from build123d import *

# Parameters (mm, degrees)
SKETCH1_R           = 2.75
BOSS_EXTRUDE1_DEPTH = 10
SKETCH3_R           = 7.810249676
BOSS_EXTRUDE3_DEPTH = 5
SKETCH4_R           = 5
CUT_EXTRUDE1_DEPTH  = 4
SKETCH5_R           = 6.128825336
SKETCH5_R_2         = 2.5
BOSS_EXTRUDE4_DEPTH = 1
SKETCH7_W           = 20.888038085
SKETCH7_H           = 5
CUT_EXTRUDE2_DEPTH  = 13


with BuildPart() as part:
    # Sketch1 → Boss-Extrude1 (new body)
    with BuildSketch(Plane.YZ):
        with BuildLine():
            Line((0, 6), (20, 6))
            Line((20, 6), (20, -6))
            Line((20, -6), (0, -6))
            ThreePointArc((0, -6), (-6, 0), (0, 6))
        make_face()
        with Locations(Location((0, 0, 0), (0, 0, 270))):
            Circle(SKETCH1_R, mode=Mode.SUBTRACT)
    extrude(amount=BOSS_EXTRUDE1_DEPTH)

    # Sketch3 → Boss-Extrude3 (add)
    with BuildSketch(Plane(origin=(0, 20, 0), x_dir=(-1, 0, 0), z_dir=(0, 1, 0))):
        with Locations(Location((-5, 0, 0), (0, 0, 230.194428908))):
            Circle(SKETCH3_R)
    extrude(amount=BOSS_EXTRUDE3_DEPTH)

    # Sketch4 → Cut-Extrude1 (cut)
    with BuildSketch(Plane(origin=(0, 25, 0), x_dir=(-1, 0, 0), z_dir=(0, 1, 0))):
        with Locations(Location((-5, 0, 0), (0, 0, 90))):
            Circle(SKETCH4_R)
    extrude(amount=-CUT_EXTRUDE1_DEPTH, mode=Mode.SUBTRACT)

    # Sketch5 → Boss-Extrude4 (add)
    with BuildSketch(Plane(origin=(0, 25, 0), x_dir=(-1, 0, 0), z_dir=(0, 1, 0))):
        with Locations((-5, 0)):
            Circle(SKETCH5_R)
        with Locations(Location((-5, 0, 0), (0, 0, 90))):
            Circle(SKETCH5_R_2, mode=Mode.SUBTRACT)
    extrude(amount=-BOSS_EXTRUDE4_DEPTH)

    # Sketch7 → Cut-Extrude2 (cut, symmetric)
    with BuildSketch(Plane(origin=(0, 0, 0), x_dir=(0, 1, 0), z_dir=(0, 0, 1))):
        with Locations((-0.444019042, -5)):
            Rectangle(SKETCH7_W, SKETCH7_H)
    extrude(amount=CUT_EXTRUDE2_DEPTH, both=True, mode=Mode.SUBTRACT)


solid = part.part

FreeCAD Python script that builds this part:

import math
import FreeCAD as App
import Part
import Sketcher
Q = App.Units.Quantity


def add_polygon(sketch, points):
    """Adds a closed chain of lines whose ends are joined by coincident constraints."""
    first, n = sketch.GeometryCount, len(points)
    for a, b in zip(points, points[1:] + points[:1]):
        sketch.addGeometry(Part.LineSegment(App.Vector(*a, 0), App.Vector(*b, 0)), False)
    for i in range(n):
        sketch.addConstraint(Sketcher.Constraint("Coincident", first + i, 2, first + (i + 1) % n, 1))

doc = App.newDocument("Part")
body = doc.addObject("PartDesign::Body", "Body")

sketch1 = body.newObject("Sketcher::SketchObject", "Sketch")
sketch1.AttachmentSupport = (doc.getObject("YZ_Plane"), [""])
sketch1.MapMode = "FlatFace"
sketch1.addGeometry([
    Part.LineSegment(App.Vector(20, 6, 0), App.Vector(0, 6, 0)),
    Part.ArcOfCircle(Part.Circle(App.Vector(0, 0, 0), App.Vector(0, 0, 1), 6), math.radians(90), math.radians(270)),
    Part.LineSegment(App.Vector(0, -6, 0), App.Vector(20, -6, 0)),
    Part.LineSegment(App.Vector(20, -6, 0), App.Vector(20, 6, 0)),
    Part.Circle(App.Vector(0, 0, 0), App.Vector(0, 0, 1), 2.8),
], False)
sketch1.addConstraint([
    Sketcher.Constraint("Tangent", 0, 2, 1, 1),
    Sketcher.Constraint("Tangent", 1, 2, 2, 1),
    Sketcher.Constraint("Coincident", 2, 2, 3, 1),
    Sketcher.Constraint("Coincident", 3, 2, 0, 1),
    Sketcher.Constraint("Horizontal", 0),
    Sketcher.Constraint("Horizontal", 2),
    Sketcher.Constraint("Vertical", 3),
    Sketcher.Constraint("Coincident", 1, 3, -1, 1),
    Sketcher.Constraint("Coincident", 4, 3, -1, 1),
    Sketcher.Constraint("Radius", 1, Q("6 mm")),
    Sketcher.Constraint("Diameter", 4, Q("5.5 mm")),
    Sketcher.Constraint("DistanceX", 0, 2, 0, 1, Q("20 mm")),
])
pad1 = body.newObject("PartDesign::Pad", "Pad")
pad1.Profile = sketch1
pad1.Length = 10

sketch2 = body.newObject("Sketcher::SketchObject", "Sketch001")
sketch2.AttachmentSupport = (doc.getObject("XZ_Plane"), [""])
sketch2.MapMode = "FlatFace"
sketch2.AttachmentOffset = App.Placement(App.Vector(0, 0, -20), App.Rotation())
sketch2.addGeometry(Part.Circle(App.Vector(5, 0, 0), App.Vector(0, 0, 1), 8), False)
sketch2.addConstraint([
    Sketcher.Constraint("PointOnObject", 0, 3, -1),
    Sketcher.Constraint("DistanceX", -1, 1, 0, 3, Q("5 mm")),
    Sketcher.Constraint("Diameter", 0, Q("15.620499 mm")),
])
pad2 = body.newObject("PartDesign::Pad", "Pad001")
pad2.Profile = sketch2
pad2.Length = 5
pad2.Reversed = True

sketch3 = body.newObject("Sketcher::SketchObject", "Sketch002")
sketch3.AttachmentSupport = (doc.getObject("XZ_Plane"), [""])
sketch3.MapMode = "FlatFace"
sketch3.AttachmentOffset = App.Placement(App.Vector(0, 0, -25), App.Rotation())
sketch3.addGeometry(Part.Circle(App.Vector(5, 0, 0), App.Vector(0, 0, 1), 5), False)
sketch3.addConstraint([
    Sketcher.Constraint("PointOnObject", 0, 3, -1),
    Sketcher.Constraint("Diameter", 0, Q("10 mm")),
    Sketcher.Constraint("DistanceX", -1, 1, 0, 3, Q("5 mm")),
])
pocket1 = body.newObject("PartDesign::Pocket", "Pocket")
pocket1.Profile = sketch3
pocket1.Length = 4
pocket1.Reversed = True

sketch4 = body.newObject("Sketcher::SketchObject", "Sketch003")
sketch4.AttachmentSupport = (doc.getObject("XZ_Plane"), [""])
sketch4.MapMode = "FlatFace"
sketch4.AttachmentOffset = App.Placement(App.Vector(0, 0, -25), App.Rotation())
sketch4.addGeometry([
    Part.Circle(App.Vector(5, 0, 0), App.Vector(0, 0, 1), 6.1),
    Part.Circle(App.Vector(5, 0, 0), App.Vector(0, 0, 1), 2.5),
], False)
sketch4.addConstraint([
    Sketcher.Constraint("Coincident", 1, 3, 0, 3),
    Sketcher.Constraint("PointOnObject", 0, 3, -1),
    Sketcher.Constraint("Diameter", 1, Q("5 mm")),
    Sketcher.Constraint("DistanceX", -1, 1, 0, 3, Q("5 mm")),
    Sketcher.Constraint("Diameter", 0, Q("12.257651 mm")),
])
pad3 = body.newObject("PartDesign::Pad", "Pad002")
pad3.Profile = sketch4
pad3.Length = 1

sketch5 = body.newObject("Sketcher::SketchObject", "Sketch004")
sketch5.AttachmentSupport = (doc.getObject("XY_Plane"), [""])
sketch5.MapMode = "FlatFace"
add_polygon(sketch5, [(2, -11), (8, -11), (8, 10), (2, 10)])
sketch5.addConstraint([
    Sketcher.Constraint("Horizontal", 0),
    Sketcher.Constraint("Vertical", 1),
    Sketcher.Constraint("Horizontal", 2),
    Sketcher.Constraint("Vertical", 3),
    Sketcher.Constraint("DistanceX", 0, 1, 0, 2, Q("5 mm")),
    Sketcher.Constraint("DistanceY", -1, 1, 1, 2, Q("10 mm")),
    Sketcher.Constraint("DistanceX", -1, 1, 0, 2, Q("7.5 mm")),
    Sketcher.Constraint("DistanceY", 1, 1, 1, 2, Q("20.888038 mm")),
])
pocket2 = body.newObject("PartDesign::Pocket", "Pocket001")
pocket2.Profile = sketch5
pocket2.Length = 26
pocket2.Midplane = True

doc.recompute()
